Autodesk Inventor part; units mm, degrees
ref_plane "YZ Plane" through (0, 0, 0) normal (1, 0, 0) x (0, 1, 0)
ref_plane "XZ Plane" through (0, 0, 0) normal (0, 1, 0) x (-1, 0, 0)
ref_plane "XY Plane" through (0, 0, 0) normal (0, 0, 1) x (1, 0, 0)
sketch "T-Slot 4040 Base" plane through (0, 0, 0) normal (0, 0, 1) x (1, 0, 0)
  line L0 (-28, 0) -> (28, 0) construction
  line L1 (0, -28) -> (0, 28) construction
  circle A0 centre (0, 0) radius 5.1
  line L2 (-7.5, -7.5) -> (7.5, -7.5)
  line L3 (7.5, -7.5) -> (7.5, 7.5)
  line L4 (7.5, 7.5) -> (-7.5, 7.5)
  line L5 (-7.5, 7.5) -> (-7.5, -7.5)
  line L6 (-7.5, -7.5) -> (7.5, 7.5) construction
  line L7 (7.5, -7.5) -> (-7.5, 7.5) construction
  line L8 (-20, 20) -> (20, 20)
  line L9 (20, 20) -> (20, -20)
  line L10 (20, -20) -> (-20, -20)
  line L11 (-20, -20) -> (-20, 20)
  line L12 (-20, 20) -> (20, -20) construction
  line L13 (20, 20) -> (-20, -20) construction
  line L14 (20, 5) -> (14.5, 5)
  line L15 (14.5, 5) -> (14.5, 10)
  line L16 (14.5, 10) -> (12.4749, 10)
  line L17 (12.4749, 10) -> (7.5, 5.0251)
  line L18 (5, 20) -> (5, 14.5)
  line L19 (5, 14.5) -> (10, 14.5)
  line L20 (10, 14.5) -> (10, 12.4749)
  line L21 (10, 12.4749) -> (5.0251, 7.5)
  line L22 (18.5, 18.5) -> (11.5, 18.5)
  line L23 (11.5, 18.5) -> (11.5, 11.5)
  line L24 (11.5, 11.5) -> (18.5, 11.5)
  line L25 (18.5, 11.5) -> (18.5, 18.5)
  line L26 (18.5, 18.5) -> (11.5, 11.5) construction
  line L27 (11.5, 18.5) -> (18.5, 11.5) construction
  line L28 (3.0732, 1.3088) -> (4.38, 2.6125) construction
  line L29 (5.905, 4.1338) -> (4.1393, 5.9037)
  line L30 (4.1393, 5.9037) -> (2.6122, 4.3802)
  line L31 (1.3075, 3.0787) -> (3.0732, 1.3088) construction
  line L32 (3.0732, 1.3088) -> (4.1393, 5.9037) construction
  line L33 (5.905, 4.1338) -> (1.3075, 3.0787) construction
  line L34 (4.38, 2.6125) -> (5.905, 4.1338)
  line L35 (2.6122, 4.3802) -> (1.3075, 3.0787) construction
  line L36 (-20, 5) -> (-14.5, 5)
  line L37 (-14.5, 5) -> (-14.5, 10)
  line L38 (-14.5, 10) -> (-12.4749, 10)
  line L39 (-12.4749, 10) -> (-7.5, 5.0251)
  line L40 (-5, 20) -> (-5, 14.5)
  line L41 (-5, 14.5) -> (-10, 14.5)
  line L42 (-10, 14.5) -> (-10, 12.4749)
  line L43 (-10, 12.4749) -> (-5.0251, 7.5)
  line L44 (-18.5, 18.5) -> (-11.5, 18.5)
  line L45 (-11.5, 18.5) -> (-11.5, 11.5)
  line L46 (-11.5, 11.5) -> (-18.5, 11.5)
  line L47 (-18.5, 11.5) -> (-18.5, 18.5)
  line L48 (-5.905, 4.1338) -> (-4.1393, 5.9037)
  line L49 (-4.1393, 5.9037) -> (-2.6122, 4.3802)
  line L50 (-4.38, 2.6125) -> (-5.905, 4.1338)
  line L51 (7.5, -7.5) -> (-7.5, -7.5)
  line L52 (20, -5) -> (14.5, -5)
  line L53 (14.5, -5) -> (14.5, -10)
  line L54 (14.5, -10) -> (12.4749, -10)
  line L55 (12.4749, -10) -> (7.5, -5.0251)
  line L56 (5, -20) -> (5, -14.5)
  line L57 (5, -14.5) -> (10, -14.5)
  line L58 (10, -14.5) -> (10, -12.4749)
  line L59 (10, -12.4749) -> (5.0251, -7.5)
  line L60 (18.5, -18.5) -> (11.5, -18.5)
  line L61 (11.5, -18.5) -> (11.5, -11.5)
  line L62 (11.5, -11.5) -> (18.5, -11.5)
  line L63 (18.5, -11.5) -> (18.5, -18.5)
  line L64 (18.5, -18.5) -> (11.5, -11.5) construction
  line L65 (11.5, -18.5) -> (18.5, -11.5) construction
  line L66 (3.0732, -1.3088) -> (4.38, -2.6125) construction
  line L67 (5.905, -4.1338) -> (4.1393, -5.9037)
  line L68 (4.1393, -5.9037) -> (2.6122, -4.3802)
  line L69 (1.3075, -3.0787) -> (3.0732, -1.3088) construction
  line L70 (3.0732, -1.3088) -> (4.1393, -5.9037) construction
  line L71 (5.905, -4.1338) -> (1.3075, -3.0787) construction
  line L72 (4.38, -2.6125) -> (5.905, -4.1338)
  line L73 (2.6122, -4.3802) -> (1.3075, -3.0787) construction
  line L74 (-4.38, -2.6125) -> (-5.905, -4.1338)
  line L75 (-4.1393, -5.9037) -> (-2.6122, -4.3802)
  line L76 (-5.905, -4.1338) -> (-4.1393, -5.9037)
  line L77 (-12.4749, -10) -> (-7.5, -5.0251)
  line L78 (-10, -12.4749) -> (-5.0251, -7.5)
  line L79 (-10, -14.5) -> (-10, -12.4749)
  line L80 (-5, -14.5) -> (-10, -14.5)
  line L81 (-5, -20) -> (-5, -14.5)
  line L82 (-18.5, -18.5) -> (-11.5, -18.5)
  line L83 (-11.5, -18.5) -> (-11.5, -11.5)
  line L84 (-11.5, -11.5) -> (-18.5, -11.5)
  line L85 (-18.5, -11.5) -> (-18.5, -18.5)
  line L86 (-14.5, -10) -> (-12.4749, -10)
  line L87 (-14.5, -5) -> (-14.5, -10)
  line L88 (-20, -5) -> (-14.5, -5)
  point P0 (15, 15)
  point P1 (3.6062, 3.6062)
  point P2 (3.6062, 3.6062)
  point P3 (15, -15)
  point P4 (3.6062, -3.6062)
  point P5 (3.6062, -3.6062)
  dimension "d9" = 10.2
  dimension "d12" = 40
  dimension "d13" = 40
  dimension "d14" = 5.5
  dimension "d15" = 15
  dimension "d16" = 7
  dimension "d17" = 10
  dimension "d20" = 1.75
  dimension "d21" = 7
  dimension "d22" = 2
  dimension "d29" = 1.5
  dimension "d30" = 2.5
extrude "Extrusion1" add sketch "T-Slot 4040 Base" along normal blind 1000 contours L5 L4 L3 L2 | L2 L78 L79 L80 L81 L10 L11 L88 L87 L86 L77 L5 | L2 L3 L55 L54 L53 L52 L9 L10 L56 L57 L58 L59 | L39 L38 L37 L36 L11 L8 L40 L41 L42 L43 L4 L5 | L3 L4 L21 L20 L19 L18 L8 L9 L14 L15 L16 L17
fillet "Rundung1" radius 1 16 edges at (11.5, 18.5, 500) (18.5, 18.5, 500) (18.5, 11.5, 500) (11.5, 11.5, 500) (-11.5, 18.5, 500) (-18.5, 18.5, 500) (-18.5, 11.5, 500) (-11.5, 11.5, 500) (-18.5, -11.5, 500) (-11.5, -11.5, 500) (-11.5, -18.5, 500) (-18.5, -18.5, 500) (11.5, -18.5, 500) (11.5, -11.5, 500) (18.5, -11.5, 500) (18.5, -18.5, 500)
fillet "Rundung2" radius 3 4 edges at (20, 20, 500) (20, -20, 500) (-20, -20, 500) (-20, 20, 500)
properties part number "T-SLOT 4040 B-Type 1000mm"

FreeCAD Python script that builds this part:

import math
import FreeCAD as App
import Part
import Sketcher

V = App.Vector
Q = App.Units.Quantity


def edges_at(feature, points):
    """Names of the edges that pass closest to the given points."""
    edges = feature.Shape.Edges
    near = lambda p: min(range(len(edges)), key=lambda i: edges[i].distToShape(Part.Vertex(*p))[0])
    return sorted({f"Edge{near(p) + 1}" for p in points})


def add_polygon(sketch, points):
    """Adds a closed chain of lines whose ends are joined by coincident constraints."""
    first, n = sketch.GeometryCount, len(points)
    for a, b in zip(points, points[1:] + points[:1]):
        sketch.addGeometry(Part.LineSegment(App.Vector(*a, 0), App.Vector(*b, 0)), False)
    for i in range(n):
        sketch.addConstraint(Sketcher.Constraint("Coincident", first + i, 2, first + (i + 1) % n, 1))

doc = App.newDocument("Part")
body = doc.addObject("PartDesign::Body", "Body")

# Sketch on XY plane
sketch1 = doc.addObject("Sketcher::SketchObject", "Sketch")
body.addObject(sketch1)
sketch1.AttachmentSupport = (doc.XY_Plane, [""])
sketch1.MapMode = "FlatFace"
add_polygon(sketch1, [(-7.5, 5.0251), (-7.5, -5.0251), (-12.4749, -10), (-14.5, -10), (-14.5, -5), (-20, -5), (-20, -20), (-5, -20), (-5, -14.5), (-10, -14.5), (-10, -12.4749), (-5.0251, -7.5), (5.0251, -7.5), (10, -12.4749), (10, -14.5), (5, -14.5), (5, -20), (20, -20), (20, -5), (14.5, -5), (14.5, -10), (12.4749, -10), (7.5, -5.0251), (7.5, 5.0251), (12.4749, 10), (14.5, 10), (14.5, 5), (20, 5), (20, 20), (5, 20), (5, 14.5), (10, 14.5), (10, 12.4749), (5.0251, 7.5), (-5.0251, 7.5), (-10, 12.4749), (-10, 14.5), (-5, 14.5), (-5, 20), (-20, 20), (-20, 5), (-14.5, 5), (-14.5, 10), (-12.4749, 10)])  # lines 0-43
sketch1.addGeometry(Part.ArcOfCircle(Part.Circle(V(0, 0, 0), V(0, 0, 1), 5.1), math.radians(-30.814436), math.radians(30.814436)), False)  # 44
sketch1.addGeometry(Part.LineSegment(V(4.38, -2.6125, 0), V(5.905, -4.1338, 0)), False)  # 45
sketch1.addGeometry(Part.LineSegment(V(5.905, -4.1338, 0), V(4.1393, -5.9037, 0)), False)  # 46
sketch1.addGeometry(Part.LineSegment(V(4.1393, -5.9037, 0), V(2.6122, -4.3802, 0)), False)  # 47
sketch1.addGeometry(Part.ArcOfCircle(Part.Circle(V(0, 0, 0), V(0, 0, 1), 5.1), math.radians(-120.810391), math.radians(-59.189609)), False)  # 48
sketch1.addGeometry(Part.LineSegment(V(-2.6122, -4.3802, 0), V(-4.1393, -5.9037, 0)), False)  # 49
sketch1.addGeometry(Part.LineSegment(V(-4.1393, -5.9037, 0), V(-5.905, -4.1338, 0)), False)  # 50
sketch1.addGeometry(Part.LineSegment(V(-5.905, -4.1338, 0), V(-4.38, -2.6125, 0)), False)  # 51
sketch1.addGeometry(Part.ArcOfCircle(Part.Circle(V(0, 0, 0), V(0, 0, 1), 5.1), math.radians(149.185564), math.radians(210.814436)), False)  # 52
sketch1.addGeometry(Part.LineSegment(V(-4.38, 2.6125, 0), V(-5.905, 4.1338, 0)), False)  # 53
sketch1.addGeometry(Part.LineSegment(V(-5.905, 4.1338, 0), V(-4.1393, 5.9037, 0)), False)  # 54
sketch1.addGeometry(Part.LineSegment(V(-4.1393, 5.9037, 0), V(-2.6122, 4.3802, 0)), False)  # 55
sketch1.addGeometry(Part.ArcOfCircle(Part.Circle(V(0, 0, 0), V(0, 0, 1), 5.1), math.radians(59.189609), math.radians(120.810391)), False)  # 56
sketch1.addGeometry(Part.LineSegment(V(2.6122, 4.3802, 0), V(4.1393, 5.9037, 0)), False)  # 57
sketch1.addGeometry(Part.LineSegment(V(4.1393, 5.9037, 0), V(5.905, 4.1338, 0)), False)  # 58
sketch1.addGeometry(Part.LineSegment(V(5.905, 4.1338, 0), V(4.38, 2.6125, 0)), False)  # 59
add_polygon(sketch1, [(-18.5, -11.5), (-11.5, -11.5), (-11.5, -18.5), (-18.5, -18.5)])  # lines 60-63
add_polygon(sketch1, [(-11.5, 18.5), (-11.5, 11.5), (-18.5, 11.5), (-18.5, 18.5)])  # lines 64-67
add_polygon(sketch1, [(18.5, 11.5), (11.5, 11.5), (11.5, 18.5), (18.5, 18.5)])  # lines 68-71
add_polygon(sketch1, [(11.5, -18.5), (11.5, -11.5), (18.5, -11.5), (18.5, -18.5)])  # lines 72-75
sketch1.addConstraint([
    Sketcher.Constraint("Coincident", 44, 1, 45, 1),
    Sketcher.Constraint("Coincident", 45, 2, 46, 1),
    Sketcher.Constraint("Coincident", 46, 2, 47, 1),
    Sketcher.Constraint("Coincident", 47, 2, 48, 2),
    Sketcher.Constraint("Coincident", 48, 1, 49, 1),
    Sketcher.Constraint("Coincident", 49, 2, 50, 1),
    Sketcher.Constraint("Coincident", 50, 2, 51, 1),
    Sketcher.Constraint("Coincident", 51, 2, 52, 2),
    Sketcher.Constraint("Coincident", 52, 1, 53, 1),
    Sketcher.Constraint("Coincident", 53, 2, 54, 1),
    Sketcher.Constraint("Coincident", 54, 2, 55, 1),
    Sketcher.Constraint("Coincident", 55, 2, 56, 2),
    Sketcher.Constraint("Coincident", 56, 1, 57, 1),
    Sketcher.Constraint("Coincident", 57, 2, 58, 1),
    Sketcher.Constraint("Coincident", 58, 2, 59, 1),
    Sketcher.Constraint("Coincident", 59, 2, 44, 2),
    Sketcher.Constraint("Vertical", 0),
    Sketcher.Constraint("Horizontal", 2),
    Sketcher.Constraint("Vertical", 3),
    Sketcher.Constraint("Horizontal", 4),
    Sketcher.Constraint("Vertical", 5),
    Sketcher.Constraint("Horizontal", 6),
    Sketcher.Constraint("Vertical", 7),
    Sketcher.Constraint("Horizontal", 8),
    Sketcher.Constraint("Vertical", 9),
    Sketcher.Constraint("Horizontal", 11),
    Sketcher.Constraint("Vertical", 13),
    Sketcher.Constraint("Horizontal", 14),
    Sketcher.Constraint("Vertical", 15),
    Sketcher.Constraint("Horizontal", 16),
    Sketcher.Constraint("Vertical", 17),
    Sketcher.Constraint("Horizontal", 18),
    Sketcher.Constraint("Vertical", 19),
    Sketcher.Constraint("Horizontal", 20),
    Sketcher.Constraint("Vertical", 22),
    Sketcher.Constraint("Horizontal", 24),
    Sketcher.Constraint("Vertical", 25),
    Sketcher.Constraint("Horizontal", 26),
    Sketcher.Constraint("Vertical", 27),
    Sketcher.Constraint("Horizontal", 28),
    Sketcher.Constraint("Vertical", 29),
    Sketcher.Constraint("Horizontal", 30),
    Sketcher.Constraint("Vertical", 31),
    Sketcher.Constraint("Horizontal", 33),
    Sketcher.Constraint("Vertical", 35),
    Sketcher.Constraint("Horizontal", 36),
    Sketcher.Constraint("Vertical", 37),
    Sketcher.Constraint("Horizontal", 38),
    Sketcher.Constraint("Vertical", 39),
    Sketcher.Constraint("Horizontal", 40),
    Sketcher.Constraint("Vertical", 41),
    Sketcher.Constraint("Horizontal", 42),
    Sketcher.Constraint("Horizontal", 60),
    Sketcher.Constraint("Vertical", 61),
    Sketcher.Constraint("Horizontal", 62),
    Sketcher.Constraint("Vertical", 63),
    Sketcher.Constraint("Vertical", 64),
    Sketcher.Constraint("Horizontal", 65),
    Sketcher.Constraint("Vertical", 66),
    Sketcher.Constraint("Horizontal", 67),
    Sketcher.Constraint("Horizontal", 68),
    Sketcher.Constraint("Vertical", 69),
    Sketcher.Constraint("Horizontal", 70),
    Sketcher.Constraint("Vertical", 71),
    Sketcher.Constraint("Vertical", 72),
    Sketcher.Constraint("Horizontal", 73),
    Sketcher.Constraint("Vertical", 74),
    Sketcher.Constraint("Horizontal", 75),
    Sketcher.Constraint("Coincident", 44, 3, -1, 1),
    Sketcher.Constraint("Coincident", 48, 3, -1, 1),
    Sketcher.Constraint("Coincident", 52, 3, -1, 1),
    Sketcher.Constraint("Coincident", 56, 3, -1, 1),
    Sketcher.Constraint("Equal", 44, 48),
    Sketcher.Constraint("Equal", 48, 52),
    Sketcher.Constraint("Equal", 52, 56),
    Sketcher.Constraint("Symmetric", 0, 2, 22, 2, -1, 1),
    Sketcher.Constraint("Symmetric", 1, 2, 23, 2, -1, 1),
    Sketcher.Constraint("Symmetric", 3, 2, 25, 2, -1, 1),
    Sketcher.Constraint("Symmetric", 5, 2, 27, 2, -1, 1),
    Sketcher.Constraint("Symmetric", 7, 2, 29, 2, -1, 1),
    Sketcher.Constraint("Symmetric", 9, 2, 31, 2, -1, 1),
    Sketcher.Constraint("Symmetric", 10, 2, 32, 2, -1, 1),
    Sketcher.Constraint("Symmetric", 12, 2, 34, 2, -1, 1),
    Sketcher.Constraint("Symmetric", 14, 2, 36, 2, -1, 1),
    Sketcher.Constraint("Symmetric", 16, 2, 38, 2, -1, 1),
    Sketcher.Constraint("Symmetric", 18, 2, 40, 2, -1, 1),
    Sketcher.Constraint("Symmetric", 20, 2, 42, 2, -1, 1),
    Sketcher.Constraint("Symmetric", 45, 2, 53, 2, -1, 1),
    Sketcher.Constraint("Symmetric", 46, 2, 54, 2, -1, 1),
    Sketcher.Constraint("Symmetric", 49, 2, 57, 2, -1, 1),
    Sketcher.Constraint("Symmetric", 50, 2, 58, 2, -1, 1),
    Sketcher.Constraint("Symmetric", 60, 2, 68, 2, -1, 1),
    Sketcher.Constraint("Symmetric", 62, 2, 70, 2, -1, 1),
    Sketcher.Constraint("Symmetric", 64, 2, 72, 2, -1, 1),
    Sketcher.Constraint("Symmetric", 66, 2, 74, 2, -1, 1),
    Sketcher.Constraint("Symmetric", 9, 2, 12, 2, -2),
    Sketcher.Constraint("Symmetric", 7, 2, 14, 2, -2),
    Sketcher.Constraint("Symmetric", 5, 2, 16, 2, -2),
    Sketcher.Constraint("Symmetric", 3, 2, 18, 2, -2),
    Sketcher.Constraint("Symmetric", 1, 2, 20, 2, -2),
    Sketcher.Constraint("Symmetric", 46, 2, 49, 2, -2),
    Sketcher.Constraint("Symmetric", 45, 2, 50, 2, -2),
    Sketcher.Constraint("Symmetric", 64, 2, 68, 2, -2),
    Sketcher.Constraint("Symmetric", 66, 2, 70, 2, -2),
    Sketcher.Constraint("Parallel", 1, 10),
    Sketcher.Constraint("Perpendicular", 10, 12),
    Sketcher.Constraint("Parallel", 12, 21),
    Sketcher.Constraint("Perpendicular", 32, 34),
    Sketcher.Constraint("Parallel", 34, 43),
    Sketcher.Constraint("Perpendicular", 45, 46),
    Sketcher.Constraint("Perpendicular", 46, 47),
    Sketcher.Constraint("Perpendicular", 49, 50),
    Sketcher.Constraint("Perpendicular", 50, 51),
    Sketcher.Constraint("Parallel", 47, 53),
    Sketcher.Constraint("Perpendicular", 54, 55),
    Sketcher.Constraint("Parallel", 51, 57),
    Sketcher.Constraint("Perpendicular", 58, 59),
    Sketcher.Constraint("Horizontal", 0, 2, 21, 2),
    Sketcher.Constraint("Equal", 33, 0),
    Sketcher.Constraint("Equal", 36, 3),
    Sketcher.Constraint("Equal", 38, 5),
    Sketcher.Constraint("Equal", 40, 7),
    Sketcher.Constraint("Equal", 42, 9),
    Sketcher.Constraint("Equal", 75, 61),
    Sketcher.Constraint("Equal", 1, 10),
    Sketcher.Constraint("Radius", 44, Q("5.1 mm")),
    Sketcher.Constraint("DistanceX", 6, 1, 6, 2, Q("15 mm")),
    Sketcher.Constraint("DistanceX", 60, 1, 60, 2, Q("7 mm")),
    Sketcher.Constraint("DistanceX", 4, 2, 4, 1, Q("5.5 mm")),
    Sketcher.Constraint("DistanceY", 1, 2, -1, 1, Q("10 mm")),
    Sketcher.Constraint("Distance", 46, Q("2.5 mm")),
    Sketcher.Constraint("DistanceX", 8, 2, 8, 1, Q("5 mm")),
    Sketcher.Constraint("DistanceX", 0, 2, -1, 1, Q("7.5 mm")),
    Sketcher.Constraint("DistanceX", 60, 2, -1, 1, Q("11.5 mm")),
    Sketcher.Constraint("DistanceY", 60, 2, -1, 1, Q("11.5 mm")),
    Sketcher.Constraint("Angle", 45, Q("-44.9304 deg")),
    Sketcher.Constraint("DistanceX", 2, 2, 2, 1, Q("2.025 mm")),
    Sketcher.Constraint("DistanceX", -1, 1, 44, 1, Q("4.38 mm")),
    Sketcher.Constraint("Distance", 45, Q("2.154 mm")),
])
pad1 = doc.addObject("PartDesign::Pad", "Pad")
body.addObject(pad1)
pad1.Profile = sketch1
pad1.Length = 1000
doc.recompute()

fillet = doc.addObject("PartDesign::Fillet", "Fillet")
body.addObject(fillet)
fillet.Base = (pad1, edges_at(pad1, [
    (11.5, 18.5, 500),
    (18.5, 18.5, 500),
    (18.5, 11.5, 500),
    (11.5, 11.5, 500),
    (-11.5, 18.5, 500),
    (-18.5, 18.5, 500),
    (-18.5, 11.5, 500),
    (-11.5, 11.5, 500),
    (-18.5, -11.5, 500),
    (-11.5, -11.5, 500),
    (-11.5, -18.5, 500),
    (-18.5, -18.5, 500),
    (11.5, -18.5, 500),
    (11.5, -11.5, 500),
    (18.5, -11.5, 500),
    (18.5, -18.5, 500),
]))
fillet.Radius = 1
doc.recompute()

fillet2 = doc.addObject("PartDesign::Fillet", "Fillet001")
body.addObject(fillet2)
fillet2.Base = (fillet, edges_at(fillet, [
    (20, 20, 500),
    (20, -20, 500),
    (-20, -20, 500),
    (-20, 20, 500),
]))
fillet2.Radius = 3

doc.recompute()
